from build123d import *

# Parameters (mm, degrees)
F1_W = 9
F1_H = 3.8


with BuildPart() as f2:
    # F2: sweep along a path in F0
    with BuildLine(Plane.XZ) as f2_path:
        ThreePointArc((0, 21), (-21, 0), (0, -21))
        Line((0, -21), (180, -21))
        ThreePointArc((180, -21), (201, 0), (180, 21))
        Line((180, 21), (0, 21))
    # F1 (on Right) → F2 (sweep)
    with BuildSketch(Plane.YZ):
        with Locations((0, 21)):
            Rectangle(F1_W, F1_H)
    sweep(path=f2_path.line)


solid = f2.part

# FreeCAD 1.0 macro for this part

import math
import FreeCAD as App
import Part
import Sketcher
from FreeCAD import Vector

doc = App.newDocument("Part")
body = doc.addObject("PartDesign::Body", "Body")

# Sketch on YZ plane
sketch1 = body.newObject("Sketcher::SketchObject", "Sketch")
sketch1.AttachmentSupport = (doc.getObject("YZ_Plane"), [""])
sketch1.MapMode = "FlatFace"
sketch1.addGeometry([
    Part.LineSegment(Vector(-4.5, 22.9, 0), Vector(-4.5, 19.1, 0)),
    Part.LineSegment(Vector(-4.5, 19.1, 0), Vector(4.5, 19.1, 0)),
    Part.LineSegment(Vector(4.5, 19.1, 0), Vector(4.5, 22.9, 0)),
    Part.LineSegment(Vector(4.5, 22.9, 0), Vector(-4.5, 22.9, 0)),
], False)
sketch1.addConstraint([
    Sketcher.Constraint("Coincident", 0, 2, 1, 1),
    Sketcher.Constraint("Coincident", 1, 2, 2, 1),
    Sketcher.Constraint("Coincident", 2, 2, 3, 1),
    Sketcher.Constraint("Coincident", 3, 2, 0, 1),
    Sketcher.Constraint("Vertical", 0),
    Sketcher.Constraint("Horizontal", 1),
    Sketcher.Constraint("Vertical", 2),
    Sketcher.Constraint("Horizontal", 3),
    Sketcher.Constraint("DistanceX", 1, 1, 1, 2, 9.0),
    Sketcher.Constraint("DistanceY", 0, 2, 0, 1, 3.8),
    Sketcher.Constraint("DistanceX", 0, 2, -1, 1, 4.5),
    Sketcher.Constraint("DistanceY", -1, 1, 0, 2, 19.1),
])

# Sketch on XZ plane
sketch2 = body.newObject("Sketcher::SketchObject", "Sketch001")
sketch2.AttachmentSupport = (doc.getObject("XZ_Plane"), [""])
sketch2.MapMode = "FlatFace"
sketch2.addGeometry([
    Part.ArcOfCircle(Part.Circle(Vector(0, 0, 0), Vector(0, 0, 1), 21), math.radians(90), math.radians(270)),
    Part.LineSegment(Vector(0, -21, 0), Vector(180, -21, 0)),
    Part.ArcOfCircle(Part.Circle(Vector(180, 0, 0), Vector(0, 0, 1), 21), math.radians(-90), math.radians(90)),
    Part.LineSegment(Vector(180, 21, 0), Vector(0, 21, 0)),
], False)
sketch2.addConstraint([
    Sketcher.Constraint("Tangent", 0, 2, 1, 1),
    Sketcher.Constraint("Tangent", 1, 2, 2, 1),
    Sketcher.Constraint("Tangent", 2, 2, 3, 1),
    Sketcher.Constraint("Tangent", 3, 2, 0, 1),
    Sketcher.Constraint("Horizontal", 1),
    Sketcher.Constraint("Horizontal", 3),
    Sketcher.Constraint("Coincident", 0, 3, -1, 1),
    Sketcher.Constraint("Radius", 0, 21.0),
    Sketcher.Constraint("DistanceX", 1, 1, 1, 2, 180.0),
])
doc.recompute()

additivepipe = body.newObject("PartDesign::AdditivePipe", "AdditivePipe")
additivepipe.Profile = sketch1
additivepipe.Spine = (sketch2, ["Edge1", "Edge2", "Edge3", "Edge4"])

doc.recompute()
